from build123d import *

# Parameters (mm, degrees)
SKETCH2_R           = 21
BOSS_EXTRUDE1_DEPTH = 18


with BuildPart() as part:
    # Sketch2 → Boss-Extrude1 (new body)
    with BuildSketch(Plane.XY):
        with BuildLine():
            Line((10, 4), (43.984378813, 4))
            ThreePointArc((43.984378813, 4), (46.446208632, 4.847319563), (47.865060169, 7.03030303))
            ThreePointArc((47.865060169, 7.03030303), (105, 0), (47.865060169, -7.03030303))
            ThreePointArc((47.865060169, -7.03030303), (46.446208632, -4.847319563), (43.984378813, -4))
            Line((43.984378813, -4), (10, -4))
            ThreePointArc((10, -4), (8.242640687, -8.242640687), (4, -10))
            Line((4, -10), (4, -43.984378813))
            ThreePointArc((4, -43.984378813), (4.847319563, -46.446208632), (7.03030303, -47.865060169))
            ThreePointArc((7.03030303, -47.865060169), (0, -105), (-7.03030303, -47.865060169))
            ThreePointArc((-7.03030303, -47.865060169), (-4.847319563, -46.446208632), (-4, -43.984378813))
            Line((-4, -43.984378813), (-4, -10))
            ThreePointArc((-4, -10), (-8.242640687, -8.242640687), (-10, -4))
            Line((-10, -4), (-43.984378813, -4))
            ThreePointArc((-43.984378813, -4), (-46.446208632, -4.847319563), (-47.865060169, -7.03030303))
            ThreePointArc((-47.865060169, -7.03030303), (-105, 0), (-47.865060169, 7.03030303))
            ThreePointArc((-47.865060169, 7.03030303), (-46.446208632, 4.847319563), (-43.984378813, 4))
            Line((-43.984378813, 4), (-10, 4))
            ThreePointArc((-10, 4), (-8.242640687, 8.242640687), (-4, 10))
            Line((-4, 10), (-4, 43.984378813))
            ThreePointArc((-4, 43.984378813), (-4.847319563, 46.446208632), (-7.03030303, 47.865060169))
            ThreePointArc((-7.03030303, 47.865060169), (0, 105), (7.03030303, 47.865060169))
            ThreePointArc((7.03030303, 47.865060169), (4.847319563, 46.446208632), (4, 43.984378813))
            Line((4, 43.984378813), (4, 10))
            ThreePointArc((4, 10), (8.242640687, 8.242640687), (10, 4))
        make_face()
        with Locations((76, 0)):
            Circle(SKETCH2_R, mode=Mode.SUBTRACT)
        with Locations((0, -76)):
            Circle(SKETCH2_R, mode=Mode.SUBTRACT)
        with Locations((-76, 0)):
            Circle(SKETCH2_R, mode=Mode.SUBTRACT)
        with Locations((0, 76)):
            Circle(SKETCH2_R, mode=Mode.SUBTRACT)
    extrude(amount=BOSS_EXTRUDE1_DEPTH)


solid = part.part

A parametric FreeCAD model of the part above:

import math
import FreeCAD as App
import Part
import Sketcher
from FreeCAD import Vector

doc = App.newDocument("Part")
params = doc.addObject("Spreadsheet::Sheet", "Params")
for row, (alias, value) in enumerate([
    ("sketch1_diameter", "42 mm"),
    ("sketch1_radius", "6 mm"),
    ("sketch1_radius2", "4 mm"),
    ("sketch1_radius3", "29 mm"),
    ("pad1_length", "18 mm"),
], start=1):
    params.set(f"A{row}", alias)
    params.set(f"B{row}", "=" + value)
    params.setAlias(f"B{row}", alias)

body = doc.addObject("PartDesign::Body", "Body")

# Sketch on XY plane
sketch1 = body.newObject("Sketcher::SketchObject", "Sketch")
sketch1.AttachmentSupport = (doc.getObject("XY_Plane"), [""])
sketch1.MapMode = "FlatFace"
sketch1.addGeometry(Part.LineSegment(Vector(44, 4, 0), Vector(10, 4, 0)), False)
sketch1.addGeometry(Part.ArcOfCircle(Part.Circle(Vector(4, 4, 0), Vector(0, 0, 1), 6), math.radians(0), math.radians(90)), False)
sketch1.addGeometry(Part.LineSegment(Vector(4, 10, 0), Vector(4, 44, 0)), False)
sketch1.addGeometry(Part.ArcOfCircle(Part.Circle(Vector(8, 44, 0), Vector(0, 0, 1), 4), math.radians(104), math.radians(180)), False)
sketch1.addGeometry(Part.ArcOfCircle(Part.Circle(Vector(0, 76, 0), Vector(0, 0, 1), 29), math.radians(-76), math.radians(256)), False)
sketch1.addGeometry(Part.ArcOfCircle(Part.Circle(Vector(-8, 44, 0), Vector(0, 0, 1), 4), math.radians(0), math.radians(76)), False)
sketch1.addGeometry(Part.LineSegment(Vector(-4, 44, 0), Vector(-4, 10, 0)), False)
sketch1.addGeometry(Part.ArcOfCircle(Part.Circle(Vector(-4, 4, 0), Vector(0, 0, 1), 6), math.radians(90), math.radians(180)), False)
sketch1.addGeometry(Part.LineSegment(Vector(-10, 4, 0), Vector(-44, 4, 0)), False)
sketch1.addGeometry(Part.ArcOfCircle(Part.Circle(Vector(-44, 8, 0), Vector(0, 0, 1), 4), math.radians(-166), math.radians(-90)), False)
sketch1.addGeometry(Part.ArcOfCircle(Part.Circle(Vector(-76, 0, 0), Vector(0, 0, 1), 29), math.radians(14), math.radians(346)), False)
sketch1.addGeometry(Part.ArcOfCircle(Part.Circle(Vector(-44, -8, 0), Vector(0, 0, 1), 4), math.radians(90), math.radians(166)), False)
sketch1.addGeometry(Part.LineSegment(Vector(-44, -4, 0), Vector(-10, -4, 0)), False)
sketch1.addGeometry(Part.ArcOfCircle(Part.Circle(Vector(-4, -4, 0), Vector(0, 0, 1), 6), math.radians(180), math.radians(270)), False)
sketch1.addGeometry(Part.LineSegment(Vector(-4, -10, 0), Vector(-4, -44, 0)), False)
sketch1.addGeometry(Part.ArcOfCircle(Part.Circle(Vector(-8, -44, 0), Vector(0, 0, 1), 4), math.radians(-76), math.radians(0)), False)
sketch1.addGeometry(Part.ArcOfCircle(Part.Circle(Vector(0, -76, 0), Vector(0, 0, 1), 29), math.radians(104), math.radians(436)), False)
sketch1.addGeometry(Part.ArcOfCircle(Part.Circle(Vector(8, -44, 0), Vector(0, 0, 1), 4), math.radians(-180), math.radians(-104)), False)
sketch1.addGeometry(Part.LineSegment(Vector(4, -44, 0), Vector(4, -10, 0)), False)
sketch1.addGeometry(Part.ArcOfCircle(Part.Circle(Vector(4, -4, 0), Vector(0, 0, 1), 6), math.radians(-90), math.radians(0)), False)
sketch1.addGeometry(Part.LineSegment(Vector(10, -4, 0), Vector(44, -4, 0)), False)
sketch1.addGeometry(Part.ArcOfCircle(Part.Circle(Vector(44, -8, 0), Vector(0, 0, 1), 4), math.radians(14), math.radians(90)), False)
sketch1.addGeometry(Part.ArcOfCircle(Part.Circle(Vector(76, 0, 0), Vector(0, 0, 1), 29), math.radians(-166), math.radians(166)), False)
sketch1.addGeometry(Part.ArcOfCircle(Part.Circle(Vector(44, 8, 0), Vector(0, 0, 1), 4), math.radians(-90), math.radians(-14)), False)
sketch1.addGeometry(Part.Circle(Vector(0, -76, 0), Vector(0, 0, 1), 21), False)
sketch1.addGeometry(Part.Circle(Vector(76, 0, 0), Vector(0, 0, 1), 21), False)
sketch1.addGeometry(Part.Circle(Vector(-76, 0, 0), Vector(0, 0, 1), 21), False)
sketch1.addGeometry(Part.Circle(Vector(0, 76, 0), Vector(0, 0, 1), 21), False)
sketch1.addConstraint(Sketcher.Constraint("Coincident", 0, 2, 1, 1))
sketch1.addConstraint(Sketcher.Constraint("Coincident", 1, 2, 2, 1))
sketch1.addConstraint(Sketcher.Constraint("Tangent", 2, 2, 3, 2))
sketch1.addConstraint(Sketcher.Constraint("Tangent", 3, 1, 4, 1))
sketch1.addConstraint(Sketcher.Constraint("Tangent", 4, 2, 5, 2))
sketch1.addConstraint(Sketcher.Constraint("Tangent", 5, 1, 6, 1))
sketch1.addConstraint(Sketcher.Constraint("Coincident", 6, 2, 7, 1))
sketch1.addConstraint(Sketcher.Constraint("Coincident", 7, 2, 8, 1))
sketch1.addConstraint(Sketcher.Constraint("Tangent", 8, 2, 9, 2))
sketch1.addConstraint(Sketcher.Constraint("Tangent", 9, 1, 10, 1))
sketch1.addConstraint(Sketcher.Constraint("Tangent", 10, 2, 11, 2))
sketch1.addConstraint(Sketcher.Constraint("Tangent", 11, 1, 12, 1))
sketch1.addConstraint(Sketcher.Constraint("Coincident", 12, 2, 13, 1))
sketch1.addConstraint(Sketcher.Constraint("Coincident", 13, 2, 14, 1))
sketch1.addConstraint(Sketcher.Constraint("Tangent", 14, 2, 15, 2))
sketch1.addConstraint(Sketcher.Constraint("Tangent", 15, 1, 16, 1))
sketch1.addConstraint(Sketcher.Constraint("Tangent", 16, 2, 17, 2))
sketch1.addConstraint(Sketcher.Constraint("Tangent", 17, 1, 18, 1))
sketch1.addConstraint(Sketcher.Constraint("Coincident", 18, 2, 19, 1))
sketch1.addConstraint(Sketcher.Constraint("Coincident", 19, 2, 20, 1))
sketch1.addConstraint(Sketcher.Constraint("Tangent", 20, 2, 21, 2))
sketch1.addConstraint(Sketcher.Constraint("Tangent", 21, 1, 22, 1))
sketch1.addConstraint(Sketcher.Constraint("Tangent", 22, 2, 23, 2))
sketch1.addConstraint(Sketcher.Constraint("Tangent", 23, 1, 0, 1))
sketch1.addConstraint(Sketcher.Constraint("Horizontal", 0))
sketch1.addConstraint(Sketcher.Constraint("Vertical", 2))
sketch1.addConstraint(Sketcher.Constraint("Vertical", 6))
sketch1.addConstraint(Sketcher.Constraint("Horizontal", 8))
sketch1.addConstraint(Sketcher.Constraint("Horizontal", 12))
sketch1.addConstraint(Sketcher.Constraint("Vertical", 14))
sketch1.addConstraint(Sketcher.Constraint("Vertical", 18))
sketch1.addConstraint(Sketcher.Constraint("Horizontal", 20))
sketch1.addConstraint(Sketcher.Constraint("Coincident", 24, 3, 16, 3))
sketch1.addConstraint(Sketcher.Constraint("Coincident", 25, 3, 22, 3))
sketch1.addConstraint(Sketcher.Constraint("Coincident", 26, 3, 10, 3))
sketch1.addConstraint(Sketcher.Constraint("Coincident", 27, 3, 4, 3))
sketch1.addConstraint(Sketcher.Constraint("Equal", 3, 5))
sketch1.addConstraint(Sketcher.Constraint("Equal", 1, 7))
sketch1.addConstraint(Sketcher.Constraint("Equal", 5, 9))
sketch1.addConstraint(Sketcher.Constraint("Equal", 4, 10))
sketch1.addConstraint(Sketcher.Constraint("Equal", 9, 11))
sketch1.addConstraint(Sketcher.Constraint("Equal", 7, 13))
sketch1.addConstraint(Sketcher.Constraint("Equal", 11, 15))
sketch1.addConstraint(Sketcher.Constraint("Equal", 10, 16))
sketch1.addConstraint(Sketcher.Constraint("Equal", 15, 17))
sketch1.addConstraint(Sketcher.Constraint("Equal", 13, 19))
sketch1.addConstraint(Sketcher.Constraint("Equal", 17, 21))
sketch1.addConstraint(Sketcher.Constraint("Equal", 16, 22))
sketch1.addConstraint(Sketcher.Constraint("Equal", 21, 23))
sketch1.addConstraint(Sketcher.Constraint("Equal", 24, 25))
sketch1.addConstraint(Sketcher.Constraint("Equal", 25, 26))
sketch1.addConstraint(Sketcher.Constraint("Equal", 26, 27))
sketch1.addConstraint(Sketcher.Constraint("Symmetric", 1, 3, 13, 3, -1, 1))
sketch1.addConstraint(Sketcher.Constraint("Symmetric", 3, 3, 15, 3, -1, 1))
sketch1.addConstraint(Sketcher.Constraint("Symmetric", 5, 3, 17, 3, -1, 1))
sketch1.addConstraint(Sketcher.Constraint("Symmetric", 7, 3, 19, 3, -1, 1))
sketch1.addConstraint(Sketcher.Constraint("Symmetric", 9, 3, 21, 3, -1, 1))
sketch1.addConstraint(Sketcher.Constraint("Symmetric", 11, 3, 23, 3, -1, 1))
sketch1.addConstraint(Sketcher.Constraint("Symmetric", 3, 3, 5, 3, -2))
sketch1.addConstraint(Sketcher.Constraint("Symmetric", 1, 3, 7, 3, -2))
sketch1.addConstraint(Sketcher.Constraint("Symmetric", 11, 3, 21, 3, -2))
sketch1.addConstraint(Sketcher.Constraint("Horizontal", 7, 3, 0, 2))
sketch1.addConstraint(Sketcher.Constraint("Vertical", 19, 3, 1, 2))
sketch1.addConstraint(Sketcher.Constraint("Equal", 20, 2))
sketch1.addConstraint(Sketcher.Constraint("Diameter", 24, 42.0))
sketch1.addConstraint(Sketcher.Constraint("Radius", 1, 6.0))
sketch1.addConstraint(Sketcher.Constraint("Radius", 3, 4.0))
sketch1.addConstraint(Sketcher.Constraint("Radius", 4, 29.0))
sketch1.addConstraint(Sketcher.Constraint("DistanceX", -1, 1, 1, 3, 4.0))
sketch1.addConstraint(Sketcher.Constraint("DistanceY", -1, 1, 1, 3, 4.0))
sketch1.addConstraint(Sketcher.Constraint("DistanceY", -1, 1, 4, 3, 76.0))
sketch1.setExpression("Constraints[64]", "Params.sketch1_diameter")
sketch1.setExpression("Constraints[65]", "Params.sketch1_radius")
sketch1.setExpression("Constraints[66]", "Params.sketch1_radius2")
sketch1.setExpression("Constraints[67]", "Params.sketch1_radius3")
pad1 = body.newObject("PartDesign::Pad", "Pad")
pad1.Profile = sketch1
pad1.setExpression("Length", "Params.pad1_length")

doc.recompute()
